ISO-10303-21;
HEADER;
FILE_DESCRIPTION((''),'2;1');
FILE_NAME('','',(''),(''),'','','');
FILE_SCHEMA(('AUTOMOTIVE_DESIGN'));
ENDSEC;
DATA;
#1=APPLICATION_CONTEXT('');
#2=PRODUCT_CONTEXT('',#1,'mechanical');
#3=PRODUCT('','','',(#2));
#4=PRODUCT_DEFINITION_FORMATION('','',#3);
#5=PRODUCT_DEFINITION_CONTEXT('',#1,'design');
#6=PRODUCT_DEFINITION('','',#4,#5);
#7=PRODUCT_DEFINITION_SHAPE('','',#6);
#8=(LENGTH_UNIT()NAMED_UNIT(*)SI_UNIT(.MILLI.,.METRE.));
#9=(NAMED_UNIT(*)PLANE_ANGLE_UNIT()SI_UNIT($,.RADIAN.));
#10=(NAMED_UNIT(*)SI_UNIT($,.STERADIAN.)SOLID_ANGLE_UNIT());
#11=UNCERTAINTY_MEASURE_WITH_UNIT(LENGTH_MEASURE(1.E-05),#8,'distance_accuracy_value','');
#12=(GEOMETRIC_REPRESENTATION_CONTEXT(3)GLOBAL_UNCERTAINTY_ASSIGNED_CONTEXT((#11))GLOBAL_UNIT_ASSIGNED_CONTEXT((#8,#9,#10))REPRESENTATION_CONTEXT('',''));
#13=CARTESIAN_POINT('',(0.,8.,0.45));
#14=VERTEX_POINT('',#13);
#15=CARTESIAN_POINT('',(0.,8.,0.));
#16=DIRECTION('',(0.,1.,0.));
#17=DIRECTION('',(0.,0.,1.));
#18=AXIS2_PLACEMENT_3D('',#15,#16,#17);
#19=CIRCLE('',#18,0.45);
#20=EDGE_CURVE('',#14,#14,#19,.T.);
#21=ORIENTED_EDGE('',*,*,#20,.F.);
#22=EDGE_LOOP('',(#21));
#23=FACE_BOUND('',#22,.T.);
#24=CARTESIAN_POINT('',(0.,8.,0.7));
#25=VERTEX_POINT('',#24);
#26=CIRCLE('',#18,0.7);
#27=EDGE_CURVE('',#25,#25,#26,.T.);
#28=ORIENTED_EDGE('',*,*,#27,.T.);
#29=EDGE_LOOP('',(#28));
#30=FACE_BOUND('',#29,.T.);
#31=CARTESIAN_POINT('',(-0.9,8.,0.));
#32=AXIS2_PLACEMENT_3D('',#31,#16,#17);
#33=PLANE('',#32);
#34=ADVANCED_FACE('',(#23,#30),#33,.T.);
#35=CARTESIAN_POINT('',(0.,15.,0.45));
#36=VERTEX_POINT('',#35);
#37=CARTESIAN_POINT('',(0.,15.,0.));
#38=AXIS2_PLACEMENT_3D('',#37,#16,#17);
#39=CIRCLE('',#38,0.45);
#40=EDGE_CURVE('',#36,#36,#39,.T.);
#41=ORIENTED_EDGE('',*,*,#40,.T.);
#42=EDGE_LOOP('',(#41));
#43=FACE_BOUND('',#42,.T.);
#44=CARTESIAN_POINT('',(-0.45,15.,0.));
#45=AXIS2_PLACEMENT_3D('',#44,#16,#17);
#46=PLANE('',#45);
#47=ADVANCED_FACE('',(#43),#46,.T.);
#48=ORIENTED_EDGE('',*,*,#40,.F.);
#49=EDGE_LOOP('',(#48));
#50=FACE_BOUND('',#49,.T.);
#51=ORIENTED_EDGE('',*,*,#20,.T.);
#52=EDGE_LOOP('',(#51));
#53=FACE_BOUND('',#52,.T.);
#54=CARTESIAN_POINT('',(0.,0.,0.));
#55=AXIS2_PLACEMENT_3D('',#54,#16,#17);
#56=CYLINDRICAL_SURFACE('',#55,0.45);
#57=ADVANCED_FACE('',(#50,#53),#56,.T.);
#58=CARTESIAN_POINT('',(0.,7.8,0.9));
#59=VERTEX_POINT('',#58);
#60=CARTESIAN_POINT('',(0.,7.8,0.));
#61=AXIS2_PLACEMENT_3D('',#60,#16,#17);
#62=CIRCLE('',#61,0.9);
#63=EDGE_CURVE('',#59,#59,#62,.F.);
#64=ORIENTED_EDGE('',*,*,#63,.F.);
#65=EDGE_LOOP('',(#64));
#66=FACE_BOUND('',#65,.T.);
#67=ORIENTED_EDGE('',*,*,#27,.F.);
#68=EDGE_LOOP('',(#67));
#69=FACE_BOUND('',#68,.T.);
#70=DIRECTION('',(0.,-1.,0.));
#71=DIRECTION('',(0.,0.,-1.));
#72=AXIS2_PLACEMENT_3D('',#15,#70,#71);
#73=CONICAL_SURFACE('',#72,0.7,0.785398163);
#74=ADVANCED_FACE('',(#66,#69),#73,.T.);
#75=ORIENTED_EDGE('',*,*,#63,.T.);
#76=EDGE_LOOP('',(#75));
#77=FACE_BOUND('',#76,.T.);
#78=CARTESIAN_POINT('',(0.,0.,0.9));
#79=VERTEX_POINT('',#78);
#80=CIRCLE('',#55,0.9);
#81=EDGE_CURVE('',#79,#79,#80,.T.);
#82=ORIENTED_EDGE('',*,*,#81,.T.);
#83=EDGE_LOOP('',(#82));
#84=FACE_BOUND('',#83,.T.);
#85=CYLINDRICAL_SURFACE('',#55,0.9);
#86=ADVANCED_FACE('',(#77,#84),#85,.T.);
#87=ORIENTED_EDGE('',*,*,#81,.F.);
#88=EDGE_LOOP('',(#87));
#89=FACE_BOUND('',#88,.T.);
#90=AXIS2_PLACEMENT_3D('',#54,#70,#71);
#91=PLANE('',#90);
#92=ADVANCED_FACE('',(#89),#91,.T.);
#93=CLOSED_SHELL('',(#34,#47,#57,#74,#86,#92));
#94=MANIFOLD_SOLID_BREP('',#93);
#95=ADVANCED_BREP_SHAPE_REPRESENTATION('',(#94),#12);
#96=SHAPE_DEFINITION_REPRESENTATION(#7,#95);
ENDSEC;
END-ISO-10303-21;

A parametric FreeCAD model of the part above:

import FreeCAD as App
import Part
import Sketcher

V = App.Vector


def edges_at(feature, points):
    """Names of the edges that pass closest to the given points."""
    edges = feature.Shape.Edges
    near = lambda p: min(range(len(edges)), key=lambda i: edges[i].distToShape(Part.Vertex(*p))[0])
    return sorted({f"Edge{near(p) + 1}" for p in points})


def add_polygon(sketch, points):
    """Adds a closed chain of lines whose ends are joined by coincident constraints."""
    first, n = sketch.GeometryCount, len(points)
    for a, b in zip(points, points[1:] + points[:1]):
        sketch.addGeometry(Part.LineSegment(App.Vector(*a, 0), App.Vector(*b, 0)), False)
    for i in range(n):
        sketch.addConstraint(Sketcher.Constraint("Coincident", first + i, 2, first + (i + 1) % n, 1))

doc = App.newDocument("Part")
body = doc.addObject("PartDesign::Body", "Body")

# Sketch on XY plane
sketch1 = doc.addObject("Sketcher::SketchObject", "Sketch")
body.addObject(sketch1)
sketch1.AttachmentSupport = (doc.XY_Plane, [""])
sketch1.MapMode = "FlatFace"
add_polygon(sketch1, [(-0.9, 0), (0, 0), (0, 15), (-0.45, 15), (-0.45, 8), (-0.9, 8)])  # lines 0-5
sketch1.addConstraint([
    Sketcher.Constraint("Horizontal", 0),
    Sketcher.Constraint("Vertical", 1),
    Sketcher.Constraint("Horizontal", 2),
    Sketcher.Constraint("Vertical", 3),
    Sketcher.Constraint("Horizontal", 4),
    Sketcher.Constraint("Vertical", 5),
    Sketcher.Constraint("Coincident", 0, 2, -1, 1),
    Sketcher.Constraint("Equal", 2, 4),
    Sketcher.Constraint("DistanceY", 1, 1, 1, 2, 15.0),
    Sketcher.Constraint("DistanceY", 3, 2, 3, 1, 7.0),
    Sketcher.Constraint("DistanceX", 0, 1, 0, 2, 0.9),
])
revolution = doc.addObject("PartDesign::Revolution", "Revolution")
body.addObject(revolution)
revolution.Profile = sketch1
revolution.ReferenceAxis = (sketch1, ["V_Axis"])
revolution.Angle = 360
doc.recompute()

chamfer = doc.addObject("PartDesign::Chamfer", "Chamfer")
body.addObject(chamfer)
chamfer.Base = (revolution, edges_at(revolution, [(0.9, 8, 0)]))
chamfer.Size = 0.2

doc.recompute()
